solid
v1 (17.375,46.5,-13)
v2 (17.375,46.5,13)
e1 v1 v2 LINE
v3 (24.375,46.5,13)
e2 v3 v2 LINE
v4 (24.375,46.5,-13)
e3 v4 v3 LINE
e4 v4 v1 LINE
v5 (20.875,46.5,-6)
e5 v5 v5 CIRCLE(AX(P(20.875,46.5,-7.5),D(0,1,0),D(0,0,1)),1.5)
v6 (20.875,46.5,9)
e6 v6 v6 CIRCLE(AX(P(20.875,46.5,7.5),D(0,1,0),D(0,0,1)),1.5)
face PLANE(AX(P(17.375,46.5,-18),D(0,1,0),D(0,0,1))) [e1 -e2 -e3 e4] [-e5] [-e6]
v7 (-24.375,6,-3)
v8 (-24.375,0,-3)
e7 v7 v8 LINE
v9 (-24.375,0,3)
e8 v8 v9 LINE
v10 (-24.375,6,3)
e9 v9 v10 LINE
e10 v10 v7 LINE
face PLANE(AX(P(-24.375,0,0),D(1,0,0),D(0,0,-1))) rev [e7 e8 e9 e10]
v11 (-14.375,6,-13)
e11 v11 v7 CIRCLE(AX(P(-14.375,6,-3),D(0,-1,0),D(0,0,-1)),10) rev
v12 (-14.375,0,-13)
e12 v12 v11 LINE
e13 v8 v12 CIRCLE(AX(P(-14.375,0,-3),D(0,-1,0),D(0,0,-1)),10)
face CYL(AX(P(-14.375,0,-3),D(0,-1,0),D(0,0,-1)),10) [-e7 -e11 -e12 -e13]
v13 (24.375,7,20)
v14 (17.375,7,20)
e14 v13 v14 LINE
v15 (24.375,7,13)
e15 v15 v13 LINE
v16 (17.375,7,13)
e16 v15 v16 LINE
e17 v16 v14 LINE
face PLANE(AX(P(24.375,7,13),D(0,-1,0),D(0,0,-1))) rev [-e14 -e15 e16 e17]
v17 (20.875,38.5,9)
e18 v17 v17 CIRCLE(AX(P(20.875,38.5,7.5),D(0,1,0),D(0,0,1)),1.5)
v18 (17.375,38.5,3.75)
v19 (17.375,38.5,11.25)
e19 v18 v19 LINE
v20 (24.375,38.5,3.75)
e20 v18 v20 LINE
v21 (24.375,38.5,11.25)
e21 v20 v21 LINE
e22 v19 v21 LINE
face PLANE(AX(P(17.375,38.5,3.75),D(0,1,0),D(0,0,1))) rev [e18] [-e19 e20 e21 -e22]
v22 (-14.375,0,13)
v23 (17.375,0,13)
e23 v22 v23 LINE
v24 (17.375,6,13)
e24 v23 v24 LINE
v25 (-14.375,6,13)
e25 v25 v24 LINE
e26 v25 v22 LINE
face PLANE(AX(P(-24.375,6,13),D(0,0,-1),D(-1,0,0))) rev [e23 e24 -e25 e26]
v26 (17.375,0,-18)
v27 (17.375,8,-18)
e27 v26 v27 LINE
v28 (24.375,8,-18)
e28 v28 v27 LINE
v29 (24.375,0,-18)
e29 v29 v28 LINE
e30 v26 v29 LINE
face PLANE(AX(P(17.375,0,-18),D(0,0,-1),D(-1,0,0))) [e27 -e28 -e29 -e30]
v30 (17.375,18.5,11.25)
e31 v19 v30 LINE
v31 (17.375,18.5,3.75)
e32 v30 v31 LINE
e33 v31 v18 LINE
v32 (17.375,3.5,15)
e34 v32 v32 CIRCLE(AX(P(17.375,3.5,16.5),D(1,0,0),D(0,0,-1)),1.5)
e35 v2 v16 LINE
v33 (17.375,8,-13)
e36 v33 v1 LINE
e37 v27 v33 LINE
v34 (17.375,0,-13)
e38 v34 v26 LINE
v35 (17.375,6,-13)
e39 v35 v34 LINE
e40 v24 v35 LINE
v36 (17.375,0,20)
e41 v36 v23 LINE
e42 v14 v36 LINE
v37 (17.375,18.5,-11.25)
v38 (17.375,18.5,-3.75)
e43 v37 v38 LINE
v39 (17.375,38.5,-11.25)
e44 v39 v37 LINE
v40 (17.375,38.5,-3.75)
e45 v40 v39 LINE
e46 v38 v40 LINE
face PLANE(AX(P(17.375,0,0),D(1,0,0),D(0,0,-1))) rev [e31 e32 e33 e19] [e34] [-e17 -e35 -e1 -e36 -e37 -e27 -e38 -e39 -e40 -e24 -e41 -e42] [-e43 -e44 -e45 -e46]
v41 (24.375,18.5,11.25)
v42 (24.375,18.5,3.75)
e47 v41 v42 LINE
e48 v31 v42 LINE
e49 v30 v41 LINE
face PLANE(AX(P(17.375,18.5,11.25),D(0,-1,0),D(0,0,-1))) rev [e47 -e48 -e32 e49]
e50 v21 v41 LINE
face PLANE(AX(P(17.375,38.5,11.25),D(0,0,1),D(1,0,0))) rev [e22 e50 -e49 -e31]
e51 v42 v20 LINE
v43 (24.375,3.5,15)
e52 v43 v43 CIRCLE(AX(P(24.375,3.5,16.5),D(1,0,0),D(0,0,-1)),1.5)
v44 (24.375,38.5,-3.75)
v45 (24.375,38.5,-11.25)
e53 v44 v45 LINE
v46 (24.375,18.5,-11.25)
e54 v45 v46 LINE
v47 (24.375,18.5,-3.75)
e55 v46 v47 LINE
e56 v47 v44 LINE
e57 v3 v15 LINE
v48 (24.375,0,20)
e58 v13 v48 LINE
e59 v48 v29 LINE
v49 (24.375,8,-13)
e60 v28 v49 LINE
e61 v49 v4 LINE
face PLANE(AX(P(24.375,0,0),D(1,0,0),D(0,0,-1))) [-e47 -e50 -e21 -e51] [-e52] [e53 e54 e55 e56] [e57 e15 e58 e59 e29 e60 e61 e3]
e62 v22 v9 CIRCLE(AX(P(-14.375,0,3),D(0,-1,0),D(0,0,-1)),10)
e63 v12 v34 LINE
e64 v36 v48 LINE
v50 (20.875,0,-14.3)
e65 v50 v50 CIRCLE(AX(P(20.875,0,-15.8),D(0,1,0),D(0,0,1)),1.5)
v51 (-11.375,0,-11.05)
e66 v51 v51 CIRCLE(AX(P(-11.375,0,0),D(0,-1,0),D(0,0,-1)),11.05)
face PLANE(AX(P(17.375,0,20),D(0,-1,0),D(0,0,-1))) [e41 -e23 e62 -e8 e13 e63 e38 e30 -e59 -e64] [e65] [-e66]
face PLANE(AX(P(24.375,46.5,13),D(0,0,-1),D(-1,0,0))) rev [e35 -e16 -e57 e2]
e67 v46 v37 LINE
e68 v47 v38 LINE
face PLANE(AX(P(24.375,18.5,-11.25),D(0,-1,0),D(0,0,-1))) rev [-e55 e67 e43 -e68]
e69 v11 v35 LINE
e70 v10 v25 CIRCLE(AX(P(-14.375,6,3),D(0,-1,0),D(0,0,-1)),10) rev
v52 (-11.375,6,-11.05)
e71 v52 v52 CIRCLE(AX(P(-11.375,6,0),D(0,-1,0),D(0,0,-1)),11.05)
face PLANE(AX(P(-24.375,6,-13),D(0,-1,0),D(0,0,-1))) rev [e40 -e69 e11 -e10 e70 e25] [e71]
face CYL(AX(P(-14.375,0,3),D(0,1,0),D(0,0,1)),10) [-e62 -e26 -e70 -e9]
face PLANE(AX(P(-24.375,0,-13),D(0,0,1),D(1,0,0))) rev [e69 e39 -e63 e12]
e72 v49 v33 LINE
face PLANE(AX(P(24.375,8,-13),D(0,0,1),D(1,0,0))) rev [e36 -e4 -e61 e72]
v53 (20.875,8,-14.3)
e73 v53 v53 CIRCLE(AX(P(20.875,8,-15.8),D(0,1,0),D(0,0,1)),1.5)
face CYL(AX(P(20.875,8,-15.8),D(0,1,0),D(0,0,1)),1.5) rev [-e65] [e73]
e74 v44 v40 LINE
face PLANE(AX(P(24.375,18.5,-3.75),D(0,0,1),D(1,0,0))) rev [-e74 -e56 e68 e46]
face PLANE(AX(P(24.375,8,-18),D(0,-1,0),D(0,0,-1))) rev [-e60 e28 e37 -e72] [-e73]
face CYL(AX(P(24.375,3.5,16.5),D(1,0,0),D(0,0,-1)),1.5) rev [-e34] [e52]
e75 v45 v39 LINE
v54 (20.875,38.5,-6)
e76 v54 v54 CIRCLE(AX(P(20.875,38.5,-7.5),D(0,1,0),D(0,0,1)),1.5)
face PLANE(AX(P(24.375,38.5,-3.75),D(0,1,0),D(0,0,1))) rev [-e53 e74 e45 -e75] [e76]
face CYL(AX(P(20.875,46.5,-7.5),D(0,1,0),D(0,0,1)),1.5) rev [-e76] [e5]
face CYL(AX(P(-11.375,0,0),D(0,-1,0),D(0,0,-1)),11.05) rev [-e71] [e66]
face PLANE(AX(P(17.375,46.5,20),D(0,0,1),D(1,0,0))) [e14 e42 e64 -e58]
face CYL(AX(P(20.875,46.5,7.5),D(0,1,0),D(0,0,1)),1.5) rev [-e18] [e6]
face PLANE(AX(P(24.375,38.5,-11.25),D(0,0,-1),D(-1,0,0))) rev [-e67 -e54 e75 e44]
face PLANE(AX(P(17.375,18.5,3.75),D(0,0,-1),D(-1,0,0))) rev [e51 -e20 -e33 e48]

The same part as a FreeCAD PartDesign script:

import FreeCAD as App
import Part
import Sketcher
Q = App.Units.Quantity


def edges_at(feature, points):
    """Names of the edges that pass closest to the given points."""
    edges = feature.Shape.Edges
    near = lambda p: min(range(len(edges)), key=lambda i: edges[i].distToShape(Part.Vertex(*p))[0])
    return sorted({f"Edge{near(p) + 1}" for p in points})

doc = App.newDocument("Part")
params = doc.addObject("Spreadsheet::Sheet", "Params")
for row, (alias, value) in enumerate([
    ("sketch1_height", "38 mm"),
    ("sketch1_width", "46.5 mm"),
    ("pad1_length", "7 mm"),
    ("sketch2_height", "5 mm"),
    ("sketch2_width", "38.5 mm"),
    ("sketch3_height", "7 mm"),
    ("sketch3_width", "39.5 mm"),
    ("sketch4_width", "20 mm"),
    ("sketch4_height", "7.5 mm"),
    ("sketch5_width", "20 mm"),
    ("sketch5_height", "7.5 mm"),
    ("sketch6_width", "6 mm"),
    ("sketch6_height", "26 mm"),
    ("pad2_length", "41.75 mm"),
    ("sketch7_diameter", "3 mm"),
    ("hole_diameter", "3 mm"),
    ("hole_depth", "8 mm"),
    ("sketch8_diameter", "3 mm"),
    ("hole2_diameter", "3 mm"),
    ("hole2_depth", "48.75 mm"),
    ("sketch9_diameter", "3 mm"),
    ("hole3_diameter", "3 mm"),
    ("sketch10_diameter", "22.1 mm"),
    ("hole4_diameter", "22.1 mm"),
    ("hole4_depth", "46.5 mm"),
    ("fillet_radius", "10 mm"),
], start=1):
    params.set(f"A{row}", alias)
    params.set(f"B{row}", "=" + value)
    params.setAlias(f"B{row}", alias)

body = doc.addObject("PartDesign::Body", "Body")

# Sketch on YZ plane
sketch1 = body.newObject("Sketcher::SketchObject", "Sketch")
sketch1.AttachmentSupport = (doc.getObject("YZ_Plane"), [""])
sketch1.MapMode = "FlatFace"
sketch1.AttachmentOffset = App.Placement(App.Vector(0, 0, 24.375), App.Rotation())
sketch1.addGeometry([
    Part.LineSegment(App.Vector(46, 20, 0), App.Vector(0, 20, 0)),
    Part.LineSegment(App.Vector(0, 20, 0), App.Vector(0, -18, 0)),
    Part.LineSegment(App.Vector(0, -18, 0), App.Vector(46, -18, 0)),
    Part.LineSegment(App.Vector(46, -18, 0), App.Vector(46, 20, 0)),
], False)
sketch1.addConstraint([
    Sketcher.Constraint("Coincident", 0, 2, 1, 1),
    Sketcher.Constraint("Coincident", 1, 2, 2, 1),
    Sketcher.Constraint("Coincident", 2, 2, 3, 1),
    Sketcher.Constraint("Coincident", 3, 2, 0, 1),
    Sketcher.Constraint("Horizontal", 0),
    Sketcher.Constraint("Vertical", 1),
    Sketcher.Constraint("Horizontal", 2),
    Sketcher.Constraint("Vertical", 3),
    Sketcher.Constraint("PointOnObject", 0, 2, -2),
    Sketcher.Constraint("DistanceY", 1, 2, 1, 1, Q("38 mm")),
    Sketcher.Constraint("DistanceX", 0, 2, 0, 1, Q("46.5 mm")),
    Sketcher.Constraint("DistanceY", -1, 1, 0, 2, Q("20 mm")),
])
sketch1.setExpression("Constraints[9]", "Params.sketch1_height")
sketch1.setExpression("Constraints[10]", "Params.sketch1_width")
pad1 = body.newObject("PartDesign::Pad", "Pad")
pad1.Profile = sketch1
pad1.setExpression("Length", "Params.pad1_length")
pad1.Reversed = True

# Sketch on YZ plane
sketch2 = body.newObject("Sketcher::SketchObject", "Sketch001")
sketch2.AttachmentSupport = (doc.getObject("YZ_Plane"), [""])
sketch2.MapMode = "FlatFace"
sketch2.AttachmentOffset = App.Placement(App.Vector(0, 0, 17.375), App.Rotation())
sketch2.addGeometry([
    Part.LineSegment(App.Vector(46, -18, 0), App.Vector(8, -18, 0)),
    Part.LineSegment(App.Vector(8, -18, 0), App.Vector(8, -13, 0)),
    Part.LineSegment(App.Vector(8, -13, 0), App.Vector(46, -13, 0)),
    Part.LineSegment(App.Vector(46, -13, 0), App.Vector(46, -18, 0)),
], False)
sketch2.addConstraint([
    Sketcher.Constraint("Coincident", 0, 2, 1, 1),
    Sketcher.Constraint("Coincident", 1, 2, 2, 1),
    Sketcher.Constraint("Coincident", 2, 2, 3, 1),
    Sketcher.Constraint("Coincident", 3, 2, 0, 1),
    Sketcher.Constraint("Horizontal", 0),
    Sketcher.Constraint("Vertical", 1),
    Sketcher.Constraint("Horizontal", 2),
    Sketcher.Constraint("Vertical", 3),
    Sketcher.Constraint("DistanceY", 1, 1, 1, 2, Q("5 mm")),
    Sketcher.Constraint("DistanceX", 0, 2, 0, 1, Q("38.5 mm")),
    Sketcher.Constraint("DistanceX", -1, 1, 0, 2, Q("8 mm")),
    Sketcher.Constraint("DistanceY", 0, 2, -1, 1, Q("18 mm")),
])
sketch2.setExpression("Constraints[8]", "Params.sketch2_height")
sketch2.setExpression("Constraints[9]", "Params.sketch2_width")
pocket1 = body.newObject("PartDesign::Pocket", "Pocket")
pocket1.Profile = sketch2
pocket1.Type = "ThroughAll"
pocket1.Reversed = True

# Sketch on YZ plane
sketch3 = body.newObject("Sketcher::SketchObject", "Sketch002")
sketch3.AttachmentSupport = (doc.getObject("YZ_Plane"), [""])
sketch3.MapMode = "FlatFace"
sketch3.AttachmentOffset = App.Placement(App.Vector(0, 0, 17.375), App.Rotation())
sketch3.addGeometry([
    Part.LineSegment(App.Vector(46, 13, 0), App.Vector(7, 13, 0)),
    Part.LineSegment(App.Vector(7, 13, 0), App.Vector(7, 20, 0)),
    Part.LineSegment(App.Vector(7, 20, 0), App.Vector(46, 20, 0)),
    Part.LineSegment(App.Vector(46, 20, 0), App.Vector(46, 13, 0)),
], False)
sketch3.addConstraint([
    Sketcher.Constraint("Coincident", 0, 2, 1, 1),
    Sketcher.Constraint("Coincident", 1, 2, 2, 1),
    Sketcher.Constraint("Coincident", 2, 2, 3, 1),
    Sketcher.Constraint("Coincident", 3, 2, 0, 1),
    Sketcher.Constraint("Horizontal", 0),
    Sketcher.Constraint("Vertical", 1),
    Sketcher.Constraint("Horizontal", 2),
    Sketcher.Constraint("Vertical", 3),
    Sketcher.Constraint("DistanceY", 1, 1, 1, 2, Q("7 mm")),
    Sketcher.Constraint("DistanceX", 0, 2, 0, 1, Q("39.5 mm")),
    Sketcher.Constraint("DistanceX", -1, 1, 0, 2, Q("7 mm")),
    Sketcher.Constraint("DistanceY", -1, 1, 0, 2, Q("13 mm")),
])
sketch3.setExpression("Constraints[8]", "Params.sketch3_height")
sketch3.setExpression("Constraints[9]", "Params.sketch3_width")
pocket2 = body.newObject("PartDesign::Pocket", "Pocket001")
pocket2.Profile = sketch3
pocket2.Type = "ThroughAll"
pocket2.Reversed = True

# Sketch on YZ plane
sketch4 = body.newObject("Sketcher::SketchObject", "Sketch003")
sketch4.AttachmentSupport = (doc.getObject("YZ_Plane"), [""])
sketch4.MapMode = "FlatFace"
sketch4.AttachmentOffset = App.Placement(App.Vector(0, 0, 24.375), App.Rotation())
sketch4.addGeometry([
    Part.LineSegment(App.Vector(38, 11, 0), App.Vector(18, 11, 0)),
    Part.LineSegment(App.Vector(18, 11, 0), App.Vector(18, 4, 0)),
    Part.LineSegment(App.Vector(18, 4, 0), App.Vector(38, 4, 0)),
    Part.LineSegment(App.Vector(38, 4, 0), App.Vector(38, 11, 0)),
], False)
sketch4.addConstraint([
    Sketcher.Constraint("Coincident", 0, 2, 1, 1),
    Sketcher.Constraint("Coincident", 1, 2, 2, 1),
    Sketcher.Constraint("Coincident", 2, 2, 3, 1),
    Sketcher.Constraint("Coincident", 3, 2, 0, 1),
    Sketcher.Constraint("Horizontal", 0),
    Sketcher.Constraint("Vertical", 1),
    Sketcher.Constraint("Horizontal", 2),
    Sketcher.Constraint("Vertical", 3),
    Sketcher.Constraint("DistanceX", 0, 2, 0, 1, Q("20 mm")),
    Sketcher.Constraint("DistanceY", 1, 2, 1, 1, Q("7.5 mm")),
    Sketcher.Constraint("DistanceX", -1, 1, 0, 2, Q("18.5 mm")),
    Sketcher.Constraint("DistanceY", -1, 1, 0, 2, Q("11.25 mm")),
])
sketch4.setExpression("Constraints[8]", "Params.sketch4_width")
sketch4.setExpression("Constraints[9]", "Params.sketch4_height")
pocket3 = body.newObject("PartDesign::Pocket", "Pocket002")
pocket3.Profile = sketch4
pocket3.Type = "ThroughAll"

# Sketch on YZ plane
sketch5 = body.newObject("Sketcher::SketchObject", "Sketch004")
sketch5.AttachmentSupport = (doc.getObject("YZ_Plane"), [""])
sketch5.MapMode = "FlatFace"
sketch5.AttachmentOffset = App.Placement(App.Vector(0, 0, 17.375), App.Rotation())
sketch5.addGeometry([
    Part.LineSegment(App.Vector(38, -11, 0), App.Vector(18, -11, 0)),
    Part.LineSegment(App.Vector(18, -11, 0), App.Vector(18, -4, 0)),
    Part.LineSegment(App.Vector(18, -4, 0), App.Vector(38, -4, 0)),
    Part.LineSegment(App.Vector(38, -4, 0), App.Vector(38, -11, 0)),
], False)
sketch5.addConstraint([
    Sketcher.Constraint("Coincident", 0, 2, 1, 1),
    Sketcher.Constraint("Coincident", 1, 2, 2, 1),
    Sketcher.Constraint("Coincident", 2, 2, 3, 1),
    Sketcher.Constraint("Coincident", 3, 2, 0, 1),
    Sketcher.Constraint("Horizontal", 0),
    Sketcher.Constraint("Vertical", 1),
    Sketcher.Constraint("Horizontal", 2),
    Sketcher.Constraint("Vertical", 3),
    Sketcher.Constraint("DistanceX", 0, 2, 0, 1, Q("20 mm")),
    Sketcher.Constraint("DistanceY", 1, 1, 1, 2, Q("7.5 mm")),
    Sketcher.Constraint("DistanceX", -1, 1, 0, 2, Q("18.5 mm")),
    Sketcher.Constraint("DistanceY", 0, 2, -1, 1, Q("11.25 mm")),
])
sketch5.setExpression("Constraints[8]", "Params.sketch5_width")
sketch5.setExpression("Constraints[9]", "Params.sketch5_height")
pocket4 = body.newObject("PartDesign::Pocket", "Pocket003")
pocket4.Profile = sketch5
pocket4.Type = "ThroughAll"
pocket4.Reversed = True

# Sketch on YZ plane
sketch6 = body.newObject("Sketcher::SketchObject", "Sketch005")
sketch6.AttachmentSupport = (doc.getObject("YZ_Plane"), [""])
sketch6.MapMode = "FlatFace"
sketch6.AttachmentOffset = App.Placement(App.Vector(0, 0, 17.375), App.Rotation())
sketch6.addGeometry([
    Part.LineSegment(App.Vector(6, -13, 0), App.Vector(0, -13, 0)),
    Part.LineSegment(App.Vector(0, -13, 0), App.Vector(0, 13, 0)),
    Part.LineSegment(App.Vector(0, 13, 0), App.Vector(6, 13, 0)),
    Part.LineSegment(App.Vector(6, 13, 0), App.Vector(6, -13, 0)),
], False)
sketch6.addConstraint([
    Sketcher.Constraint("Coincident", 0, 2, 1, 1),
    Sketcher.Constraint("Coincident", 1, 2, 2, 1),
    Sketcher.Constraint("Coincident", 2, 2, 3, 1),
    Sketcher.Constraint("Coincident", 3, 2, 0, 1),
    Sketcher.Constraint("Horizontal", 0),
    Sketcher.Constraint("Vertical", 1),
    Sketcher.Constraint("Horizontal", 2),
    Sketcher.Constraint("Vertical", 3),
    Sketcher.Constraint("Symmetric", 0, 2, 1, 2, -1, 1),
    Sketcher.Constraint("DistanceX", 0, 2, 0, 1, Q("6 mm")),
    Sketcher.Constraint("DistanceY", 1, 1, 1, 2, Q("26 mm")),
])
sketch6.setExpression("Constraints[9]", "Params.sketch6_width")
sketch6.setExpression("Constraints[10]", "Params.sketch6_height")
pad2 = body.newObject("PartDesign::Pad", "Pad001")
pad2.Profile = sketch6
pad2.setExpression("Length", "Params.pad2_length")
pad2.Reversed = True

# Sketch on XZ plane
sketch7 = body.newObject("Sketcher::SketchObject", "Sketch006")
sketch7.AttachmentSupport = (doc.getObject("XZ_Plane"), [""])
sketch7.MapMode = "FlatFace"
sketch7.AttachmentOffset = App.Placement(App.Vector(0, 0, -46.5), App.Rotation())
sketch7.addGeometry([
    Part.Circle(App.Vector(20.9, 7.5, 0), App.Vector(0, 0, 1), 1.5),
    Part.Circle(App.Vector(20.9, -7.5, 0), App.Vector(0, 0, 1), 1.5),
], False)
sketch7.addConstraint([
    Sketcher.Constraint("Equal", 0, 1),
    Sketcher.Constraint("Symmetric", 0, 3, 1, 3, -1),
    Sketcher.Constraint("Diameter", 0, Q("3 mm")),
    Sketcher.Constraint("DistanceY", 1, 3, 0, 3, Q("15 mm")),
    Sketcher.Constraint("DistanceX", -1, 1, 0, 3, Q("20.875 mm")),
])
sketch7.setExpression("Constraints[2]", "Params.sketch7_diameter")
doc.recompute()
hole = body.newObject("PartDesign::Hole", "Hole")
hole.Profile = sketch7
hole.ThreadType = "None"
hole.setExpression("Diameter", "Params.hole_diameter")
hole.DepthType = "Dimension"
hole.setExpression("Depth", "Params.hole_depth")
hole.DrillPoint = "Flat"
hole.Reversed = True

# Sketch on YZ plane
sketch8 = body.newObject("Sketcher::SketchObject", "Sketch007")
sketch8.AttachmentSupport = (doc.getObject("YZ_Plane"), [""])
sketch8.MapMode = "FlatFace"
sketch8.AttachmentOffset = App.Placement(App.Vector(0, 0, 24.375), App.Rotation())
sketch8.addGeometry(Part.Circle(App.Vector(3.5, 16.5, 0), App.Vector(0, 0, 1), 1.5), False)
sketch8.addConstraint([
    Sketcher.Constraint("Diameter", 0, Q("3 mm")),
    Sketcher.Constraint("DistanceX", -1, 1, 0, 3, Q("3.5 mm")),
    Sketcher.Constraint("DistanceY", -1, 1, 0, 3, Q("16.5 mm")),
])
sketch8.setExpression("Constraints[0]", "Params.sketch8_diameter")
doc.recompute()
hole2 = body.newObject("PartDesign::Hole", "Hole001")
hole2.Profile = sketch8
hole2.ThreadType = "None"
hole2.setExpression("Diameter", "Params.hole2_diameter")
hole2.DepthType = "Dimension"
hole2.setExpression("Depth", "Params.hole2_depth")
hole2.DrillPoint = "Flat"

# Sketch on XZ plane
sketch9 = body.newObject("Sketcher::SketchObject", "Sketch008")
sketch9.AttachmentSupport = (doc.getObject("XZ_Plane"), [""])
sketch9.MapMode = "FlatFace"
sketch9.AttachmentOffset = App.Placement(App.Vector(0, 0, -8), App.Rotation())
sketch9.addGeometry(Part.Circle(App.Vector(20.9, -15.8, 0), App.Vector(0, 0, 1), 1.5), False)
sketch9.addConstraint([
    Sketcher.Constraint("Diameter", 0, Q("3 mm")),
    Sketcher.Constraint("DistanceY", 0, 3, -1, 1, Q("15.8 mm")),
    Sketcher.Constraint("DistanceX", -1, 1, 0, 3, Q("20.875 mm")),
])
sketch9.setExpression("Constraints[0]", "Params.sketch9_diameter")
doc.recompute()
hole3 = body.newObject("PartDesign::Hole", "Hole002")
hole3.Profile = sketch9
hole3.ThreadType = "None"
hole3.setExpression("Diameter", "Params.hole3_diameter")
hole3.DepthType = "ThroughAll"
hole3.Reversed = True

# Sketch on XZ plane
sketch10 = body.newObject("Sketcher::SketchObject", "Sketch009")
sketch10.AttachmentSupport = (doc.getObject("XZ_Plane"), [""])
sketch10.MapMode = "FlatFace"
sketch10.addGeometry(Part.Circle(App.Vector(-11, 0, 0), App.Vector(0, 0, 1), 11), False)
sketch10.addConstraint([
    Sketcher.Constraint("PointOnObject", 0, 3, -1),
    Sketcher.Constraint("Diameter", 0, Q("22.1 mm")),
    Sketcher.Constraint("DistanceX", 0, 3, -1, 1, Q("11.375 mm")),
])
sketch10.setExpression("Constraints[1]", "Params.sketch10_diameter")
doc.recompute()
hole4 = body.newObject("PartDesign::Hole", "Hole003")
hole4.Profile = sketch10
hole4.ThreadType = "None"
hole4.setExpression("Diameter", "Params.hole4_diameter")
hole4.DepthType = "Dimension"
hole4.setExpression("Depth", "Params.hole4_depth")
hole4.DrillPoint = "Flat"
doc.recompute()

fillet = body.newObject("PartDesign::Fillet", "Fillet")
fillet.Base = (hole4, edges_at(hole4, [(-24.375, 3, -13), (-24.375, 3, 13)]))
fillet.setExpression("Radius", "Params.fillet_radius")

doc.recompute()
